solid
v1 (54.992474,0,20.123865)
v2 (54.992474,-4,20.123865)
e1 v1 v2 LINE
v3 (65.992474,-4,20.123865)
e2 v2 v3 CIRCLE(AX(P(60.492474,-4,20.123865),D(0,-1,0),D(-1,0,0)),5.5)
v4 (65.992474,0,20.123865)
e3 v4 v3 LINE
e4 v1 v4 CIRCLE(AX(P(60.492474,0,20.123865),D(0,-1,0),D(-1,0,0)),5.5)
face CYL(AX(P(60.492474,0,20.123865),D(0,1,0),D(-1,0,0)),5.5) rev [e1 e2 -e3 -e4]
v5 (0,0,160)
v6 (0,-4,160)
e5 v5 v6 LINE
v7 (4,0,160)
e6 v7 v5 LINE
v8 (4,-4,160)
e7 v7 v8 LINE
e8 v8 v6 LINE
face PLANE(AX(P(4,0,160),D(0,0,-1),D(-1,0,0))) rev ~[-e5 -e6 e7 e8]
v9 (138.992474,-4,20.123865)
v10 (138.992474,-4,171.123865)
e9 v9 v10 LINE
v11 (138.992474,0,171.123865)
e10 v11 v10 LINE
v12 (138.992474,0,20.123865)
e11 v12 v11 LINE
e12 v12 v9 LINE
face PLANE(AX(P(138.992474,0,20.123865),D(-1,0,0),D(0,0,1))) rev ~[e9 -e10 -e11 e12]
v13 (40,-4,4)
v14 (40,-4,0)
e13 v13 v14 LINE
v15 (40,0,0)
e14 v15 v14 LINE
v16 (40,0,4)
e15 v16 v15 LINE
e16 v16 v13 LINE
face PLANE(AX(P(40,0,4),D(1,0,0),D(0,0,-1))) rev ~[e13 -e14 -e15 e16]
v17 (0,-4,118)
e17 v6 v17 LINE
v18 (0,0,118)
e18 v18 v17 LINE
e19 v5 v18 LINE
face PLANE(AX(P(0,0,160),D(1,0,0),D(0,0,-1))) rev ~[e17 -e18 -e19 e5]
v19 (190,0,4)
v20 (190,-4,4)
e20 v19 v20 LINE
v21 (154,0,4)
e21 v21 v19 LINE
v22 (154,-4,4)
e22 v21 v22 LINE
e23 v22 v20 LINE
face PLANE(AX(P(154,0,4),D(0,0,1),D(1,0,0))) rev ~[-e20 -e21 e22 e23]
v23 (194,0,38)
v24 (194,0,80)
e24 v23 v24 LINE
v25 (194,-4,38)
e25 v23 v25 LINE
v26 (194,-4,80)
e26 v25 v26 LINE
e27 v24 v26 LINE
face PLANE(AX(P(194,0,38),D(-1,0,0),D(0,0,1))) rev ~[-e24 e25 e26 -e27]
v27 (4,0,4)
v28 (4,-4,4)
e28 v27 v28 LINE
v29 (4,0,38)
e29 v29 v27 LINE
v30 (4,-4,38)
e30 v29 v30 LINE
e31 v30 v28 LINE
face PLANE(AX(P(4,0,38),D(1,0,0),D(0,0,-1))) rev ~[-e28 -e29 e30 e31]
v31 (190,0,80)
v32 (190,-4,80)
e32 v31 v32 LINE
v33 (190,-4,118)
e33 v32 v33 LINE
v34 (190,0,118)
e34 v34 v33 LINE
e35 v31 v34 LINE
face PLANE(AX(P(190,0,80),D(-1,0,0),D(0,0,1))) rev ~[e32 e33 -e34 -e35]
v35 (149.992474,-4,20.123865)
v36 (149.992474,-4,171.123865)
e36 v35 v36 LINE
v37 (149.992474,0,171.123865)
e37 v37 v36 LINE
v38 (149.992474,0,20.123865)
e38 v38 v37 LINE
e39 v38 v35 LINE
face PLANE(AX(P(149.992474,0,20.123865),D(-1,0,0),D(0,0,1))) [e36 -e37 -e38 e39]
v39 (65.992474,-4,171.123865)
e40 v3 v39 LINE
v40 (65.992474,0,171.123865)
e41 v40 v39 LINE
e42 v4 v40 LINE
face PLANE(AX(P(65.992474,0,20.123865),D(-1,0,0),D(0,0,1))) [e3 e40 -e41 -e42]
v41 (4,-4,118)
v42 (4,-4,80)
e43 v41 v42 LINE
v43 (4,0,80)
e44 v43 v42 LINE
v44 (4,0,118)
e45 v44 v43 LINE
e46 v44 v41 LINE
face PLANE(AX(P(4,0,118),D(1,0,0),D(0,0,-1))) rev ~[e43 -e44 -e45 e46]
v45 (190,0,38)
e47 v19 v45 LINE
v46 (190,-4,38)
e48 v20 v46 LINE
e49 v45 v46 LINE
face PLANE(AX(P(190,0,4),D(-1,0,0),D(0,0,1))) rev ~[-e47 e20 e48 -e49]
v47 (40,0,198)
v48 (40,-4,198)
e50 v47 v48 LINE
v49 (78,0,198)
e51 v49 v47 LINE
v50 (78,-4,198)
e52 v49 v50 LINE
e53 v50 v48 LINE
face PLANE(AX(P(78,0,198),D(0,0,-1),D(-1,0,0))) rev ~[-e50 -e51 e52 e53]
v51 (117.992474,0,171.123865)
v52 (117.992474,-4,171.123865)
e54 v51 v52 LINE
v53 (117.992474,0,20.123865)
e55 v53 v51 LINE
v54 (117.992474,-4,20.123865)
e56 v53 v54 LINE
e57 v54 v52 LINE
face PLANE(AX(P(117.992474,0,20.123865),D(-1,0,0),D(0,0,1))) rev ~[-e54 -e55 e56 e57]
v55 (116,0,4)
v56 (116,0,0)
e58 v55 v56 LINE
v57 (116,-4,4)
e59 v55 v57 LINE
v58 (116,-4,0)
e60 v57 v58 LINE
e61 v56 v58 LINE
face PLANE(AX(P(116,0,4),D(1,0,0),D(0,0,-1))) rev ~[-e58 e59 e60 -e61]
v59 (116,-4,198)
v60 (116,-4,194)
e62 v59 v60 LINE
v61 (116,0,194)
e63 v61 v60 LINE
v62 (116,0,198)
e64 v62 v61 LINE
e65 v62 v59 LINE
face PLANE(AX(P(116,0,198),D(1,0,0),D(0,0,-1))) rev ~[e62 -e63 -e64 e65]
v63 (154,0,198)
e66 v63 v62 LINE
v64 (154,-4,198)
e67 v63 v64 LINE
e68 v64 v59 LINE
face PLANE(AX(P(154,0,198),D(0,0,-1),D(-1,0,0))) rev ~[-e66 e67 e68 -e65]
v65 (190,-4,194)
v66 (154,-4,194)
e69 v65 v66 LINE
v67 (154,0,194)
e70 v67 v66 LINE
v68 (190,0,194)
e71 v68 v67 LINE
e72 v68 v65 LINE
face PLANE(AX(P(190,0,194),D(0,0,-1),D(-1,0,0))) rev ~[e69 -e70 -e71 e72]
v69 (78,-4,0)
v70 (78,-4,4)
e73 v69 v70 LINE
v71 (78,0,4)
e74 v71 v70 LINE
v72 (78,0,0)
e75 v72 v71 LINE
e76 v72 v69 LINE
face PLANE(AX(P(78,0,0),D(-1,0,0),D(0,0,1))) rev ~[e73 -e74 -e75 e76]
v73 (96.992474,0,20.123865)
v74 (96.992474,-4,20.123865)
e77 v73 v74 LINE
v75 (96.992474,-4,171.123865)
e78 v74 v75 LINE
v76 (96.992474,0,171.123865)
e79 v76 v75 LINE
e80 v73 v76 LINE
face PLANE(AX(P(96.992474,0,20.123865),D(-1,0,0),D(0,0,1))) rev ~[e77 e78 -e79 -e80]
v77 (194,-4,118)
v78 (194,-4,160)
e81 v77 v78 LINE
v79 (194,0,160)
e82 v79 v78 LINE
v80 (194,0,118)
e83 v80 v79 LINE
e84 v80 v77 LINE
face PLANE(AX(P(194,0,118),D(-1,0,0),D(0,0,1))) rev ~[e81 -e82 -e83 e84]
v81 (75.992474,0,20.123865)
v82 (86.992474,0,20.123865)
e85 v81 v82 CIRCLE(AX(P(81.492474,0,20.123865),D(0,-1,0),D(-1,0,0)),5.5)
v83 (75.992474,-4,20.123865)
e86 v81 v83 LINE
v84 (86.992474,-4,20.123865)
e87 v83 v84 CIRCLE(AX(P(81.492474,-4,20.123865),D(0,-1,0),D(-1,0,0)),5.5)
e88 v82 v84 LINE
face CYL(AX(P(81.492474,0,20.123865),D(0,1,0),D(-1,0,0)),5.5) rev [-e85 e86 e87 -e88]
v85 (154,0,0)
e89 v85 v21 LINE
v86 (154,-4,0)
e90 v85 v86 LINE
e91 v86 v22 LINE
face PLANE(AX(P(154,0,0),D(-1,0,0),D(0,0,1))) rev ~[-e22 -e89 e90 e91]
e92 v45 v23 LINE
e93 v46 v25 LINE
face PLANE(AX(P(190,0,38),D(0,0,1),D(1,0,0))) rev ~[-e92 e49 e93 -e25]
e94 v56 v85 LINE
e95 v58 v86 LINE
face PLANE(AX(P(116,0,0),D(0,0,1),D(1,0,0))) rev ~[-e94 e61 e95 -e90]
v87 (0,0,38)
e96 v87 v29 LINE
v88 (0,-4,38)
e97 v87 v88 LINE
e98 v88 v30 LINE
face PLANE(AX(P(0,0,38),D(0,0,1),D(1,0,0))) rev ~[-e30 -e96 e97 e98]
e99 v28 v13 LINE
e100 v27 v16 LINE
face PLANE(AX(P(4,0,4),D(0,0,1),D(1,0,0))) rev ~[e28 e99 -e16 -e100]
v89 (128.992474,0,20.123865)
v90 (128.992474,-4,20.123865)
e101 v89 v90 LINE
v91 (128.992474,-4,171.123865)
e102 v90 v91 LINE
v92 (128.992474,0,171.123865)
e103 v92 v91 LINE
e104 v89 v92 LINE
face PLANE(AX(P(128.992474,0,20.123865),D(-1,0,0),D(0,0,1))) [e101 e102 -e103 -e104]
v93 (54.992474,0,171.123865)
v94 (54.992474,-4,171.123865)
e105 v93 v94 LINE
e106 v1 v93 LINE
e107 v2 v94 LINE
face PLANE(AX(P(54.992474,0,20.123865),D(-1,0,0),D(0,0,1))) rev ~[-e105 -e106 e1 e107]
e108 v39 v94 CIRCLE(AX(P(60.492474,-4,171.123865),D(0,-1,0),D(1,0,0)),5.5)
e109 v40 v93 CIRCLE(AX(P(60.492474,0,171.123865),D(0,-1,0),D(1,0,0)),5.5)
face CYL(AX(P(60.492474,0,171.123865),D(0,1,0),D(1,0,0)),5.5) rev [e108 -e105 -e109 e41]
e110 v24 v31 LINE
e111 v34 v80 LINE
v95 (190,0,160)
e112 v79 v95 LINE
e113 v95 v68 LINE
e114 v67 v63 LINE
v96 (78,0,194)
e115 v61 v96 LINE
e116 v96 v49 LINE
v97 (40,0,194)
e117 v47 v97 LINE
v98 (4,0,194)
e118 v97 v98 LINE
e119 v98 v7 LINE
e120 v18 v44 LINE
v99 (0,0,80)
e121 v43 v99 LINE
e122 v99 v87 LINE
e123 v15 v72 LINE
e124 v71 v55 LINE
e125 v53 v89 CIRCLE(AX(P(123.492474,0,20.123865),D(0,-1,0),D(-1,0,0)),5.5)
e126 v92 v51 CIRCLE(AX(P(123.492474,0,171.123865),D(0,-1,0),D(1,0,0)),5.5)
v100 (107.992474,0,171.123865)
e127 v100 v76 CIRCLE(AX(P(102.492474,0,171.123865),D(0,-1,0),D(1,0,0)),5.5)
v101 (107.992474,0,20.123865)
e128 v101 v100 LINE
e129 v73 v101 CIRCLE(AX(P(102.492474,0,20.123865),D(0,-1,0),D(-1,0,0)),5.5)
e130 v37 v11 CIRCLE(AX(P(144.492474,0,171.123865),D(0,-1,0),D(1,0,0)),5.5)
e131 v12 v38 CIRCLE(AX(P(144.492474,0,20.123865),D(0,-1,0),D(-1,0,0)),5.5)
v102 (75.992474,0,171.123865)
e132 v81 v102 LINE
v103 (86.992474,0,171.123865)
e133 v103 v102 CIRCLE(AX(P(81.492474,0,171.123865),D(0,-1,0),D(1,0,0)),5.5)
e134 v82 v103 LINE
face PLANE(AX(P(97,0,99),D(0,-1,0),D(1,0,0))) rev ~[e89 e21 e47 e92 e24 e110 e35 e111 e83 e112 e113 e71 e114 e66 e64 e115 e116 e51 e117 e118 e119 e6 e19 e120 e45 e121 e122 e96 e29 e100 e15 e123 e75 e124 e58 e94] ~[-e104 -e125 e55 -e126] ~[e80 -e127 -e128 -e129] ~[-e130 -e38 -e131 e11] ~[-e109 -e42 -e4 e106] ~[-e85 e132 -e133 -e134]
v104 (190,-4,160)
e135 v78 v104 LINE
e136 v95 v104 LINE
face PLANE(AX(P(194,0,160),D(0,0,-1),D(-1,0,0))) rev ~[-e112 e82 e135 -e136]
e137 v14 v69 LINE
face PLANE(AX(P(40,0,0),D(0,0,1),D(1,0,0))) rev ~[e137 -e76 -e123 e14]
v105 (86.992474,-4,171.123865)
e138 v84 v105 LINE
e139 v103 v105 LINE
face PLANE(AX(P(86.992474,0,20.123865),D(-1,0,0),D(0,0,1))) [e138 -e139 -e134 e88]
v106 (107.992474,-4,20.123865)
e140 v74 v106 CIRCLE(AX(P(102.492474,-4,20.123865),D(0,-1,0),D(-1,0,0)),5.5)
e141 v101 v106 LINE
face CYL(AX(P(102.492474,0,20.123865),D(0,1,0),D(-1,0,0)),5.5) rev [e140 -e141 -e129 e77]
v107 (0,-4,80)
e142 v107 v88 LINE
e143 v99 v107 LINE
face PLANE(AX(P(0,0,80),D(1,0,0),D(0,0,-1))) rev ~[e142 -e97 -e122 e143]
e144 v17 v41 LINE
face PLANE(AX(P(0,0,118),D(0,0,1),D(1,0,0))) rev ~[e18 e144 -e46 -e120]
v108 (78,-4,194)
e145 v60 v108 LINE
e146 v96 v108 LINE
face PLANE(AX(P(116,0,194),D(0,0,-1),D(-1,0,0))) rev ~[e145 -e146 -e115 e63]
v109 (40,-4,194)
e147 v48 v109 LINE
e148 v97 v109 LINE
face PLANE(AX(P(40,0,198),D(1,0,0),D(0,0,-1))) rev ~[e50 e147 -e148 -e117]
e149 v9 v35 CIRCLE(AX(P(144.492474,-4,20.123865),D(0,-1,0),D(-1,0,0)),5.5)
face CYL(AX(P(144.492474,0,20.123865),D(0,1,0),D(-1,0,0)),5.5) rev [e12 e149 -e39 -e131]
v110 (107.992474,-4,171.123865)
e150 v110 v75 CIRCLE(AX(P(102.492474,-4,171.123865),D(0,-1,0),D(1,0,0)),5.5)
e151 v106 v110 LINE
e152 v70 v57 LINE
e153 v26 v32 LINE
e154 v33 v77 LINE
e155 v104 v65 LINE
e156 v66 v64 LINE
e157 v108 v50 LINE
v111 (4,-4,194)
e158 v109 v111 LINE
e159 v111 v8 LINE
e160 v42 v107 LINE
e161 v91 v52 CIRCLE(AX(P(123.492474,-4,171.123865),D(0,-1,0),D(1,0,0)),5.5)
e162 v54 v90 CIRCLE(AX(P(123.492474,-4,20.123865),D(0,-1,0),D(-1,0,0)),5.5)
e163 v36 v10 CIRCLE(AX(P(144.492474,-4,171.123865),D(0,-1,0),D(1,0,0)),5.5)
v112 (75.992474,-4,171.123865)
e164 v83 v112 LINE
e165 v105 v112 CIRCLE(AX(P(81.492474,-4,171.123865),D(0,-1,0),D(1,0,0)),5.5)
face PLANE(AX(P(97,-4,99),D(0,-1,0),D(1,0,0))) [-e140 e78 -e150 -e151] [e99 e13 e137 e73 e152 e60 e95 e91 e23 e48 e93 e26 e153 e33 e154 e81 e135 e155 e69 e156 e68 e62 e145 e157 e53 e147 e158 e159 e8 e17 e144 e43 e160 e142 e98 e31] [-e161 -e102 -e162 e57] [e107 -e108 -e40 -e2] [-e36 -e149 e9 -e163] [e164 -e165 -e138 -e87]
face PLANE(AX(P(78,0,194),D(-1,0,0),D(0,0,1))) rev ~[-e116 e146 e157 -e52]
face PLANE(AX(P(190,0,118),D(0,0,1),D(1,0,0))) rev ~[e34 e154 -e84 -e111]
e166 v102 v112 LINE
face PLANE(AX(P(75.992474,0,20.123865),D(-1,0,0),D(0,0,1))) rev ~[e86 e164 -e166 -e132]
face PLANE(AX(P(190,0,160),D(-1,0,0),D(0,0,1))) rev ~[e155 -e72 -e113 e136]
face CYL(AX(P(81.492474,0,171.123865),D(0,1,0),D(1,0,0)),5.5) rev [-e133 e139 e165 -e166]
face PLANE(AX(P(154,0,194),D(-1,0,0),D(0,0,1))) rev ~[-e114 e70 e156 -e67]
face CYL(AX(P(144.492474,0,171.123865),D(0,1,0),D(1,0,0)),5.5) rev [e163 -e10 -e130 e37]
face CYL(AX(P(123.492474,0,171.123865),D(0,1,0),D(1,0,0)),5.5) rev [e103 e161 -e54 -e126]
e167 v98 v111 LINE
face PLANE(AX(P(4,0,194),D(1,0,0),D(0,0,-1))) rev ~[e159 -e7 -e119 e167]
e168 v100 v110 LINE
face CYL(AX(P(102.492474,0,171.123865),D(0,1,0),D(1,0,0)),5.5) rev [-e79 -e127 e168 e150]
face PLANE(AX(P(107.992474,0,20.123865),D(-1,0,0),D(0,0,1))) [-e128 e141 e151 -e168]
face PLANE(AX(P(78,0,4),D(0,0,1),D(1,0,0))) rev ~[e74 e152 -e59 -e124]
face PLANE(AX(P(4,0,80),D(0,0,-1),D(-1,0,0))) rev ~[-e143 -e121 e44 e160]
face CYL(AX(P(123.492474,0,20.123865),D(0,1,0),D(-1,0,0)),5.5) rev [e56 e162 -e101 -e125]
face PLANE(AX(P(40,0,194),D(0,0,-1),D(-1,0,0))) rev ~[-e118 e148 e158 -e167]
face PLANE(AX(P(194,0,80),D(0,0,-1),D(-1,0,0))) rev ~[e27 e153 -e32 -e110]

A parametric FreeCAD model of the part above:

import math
import FreeCAD as App
import Part
import Sketcher
Q = App.Units.Quantity


def add_polygon(sketch, points):
    """Adds a closed chain of lines whose ends are joined by coincident constraints."""
    first, n = sketch.GeometryCount, len(points)
    for a, b in zip(points, points[1:] + points[:1]):
        sketch.addGeometry(Part.LineSegment(App.Vector(*a, 0), App.Vector(*b, 0)), False)
    for i in range(n):
        sketch.addConstraint(Sketcher.Constraint("Coincident", first + i, 2, first + (i + 1) % n, 1))

doc = App.newDocument("Part")
body = doc.addObject("PartDesign::Body", "Body")

# Sketch on XZ plane
sketch1 = body.newObject("Sketcher::SketchObject", "Sketch")
sketch1.AttachmentSupport = (doc.getObject("XZ_Plane"), [""])
sketch1.MapMode = "FlatFace"
add_polygon(sketch1, [(40, 4), (40, 0), (78, 0), (78, 4), (116, 4), (116, 0), (154, 0), (154, 4), (190, 4), (190, 38), (194, 38), (194, 80), (190, 80), (190, 118), (194, 118), (194, 160), (190, 160), (190, 194), (154, 194), (154, 198), (116, 198), (116, 194), (78, 194), (78, 198), (40, 198), (40, 194), (4, 194), (4, 160), (0, 160), (0, 118), (4, 118), (4, 80), (0, 80), (0, 38), (4, 38), (4, 4)])  # lines 0-35
sketch1.addConstraint(Sketcher.Constraint("Vertical", 0))
sketch1.addConstraint(Sketcher.Constraint("Horizontal", 1))
sketch1.addConstraint(Sketcher.Constraint("Vertical", 2))
sketch1.addConstraint(Sketcher.Constraint("Horizontal", 3))
sketch1.addConstraint(Sketcher.Constraint("Vertical", 4))
sketch1.addConstraint(Sketcher.Constraint("Horizontal", 5))
sketch1.addConstraint(Sketcher.Constraint("Vertical", 6))
sketch1.addConstraint(Sketcher.Constraint("Horizontal", 7))
sketch1.addConstraint(Sketcher.Constraint("Vertical", 8))
sketch1.addConstraint(Sketcher.Constraint("Horizontal", 9))
sketch1.addConstraint(Sketcher.Constraint("Vertical", 10))
sketch1.addConstraint(Sketcher.Constraint("Horizontal", 11))
sketch1.addConstraint(Sketcher.Constraint("Vertical", 12))
sketch1.addConstraint(Sketcher.Constraint("Horizontal", 13))
sketch1.addConstraint(Sketcher.Constraint("Vertical", 14))
sketch1.addConstraint(Sketcher.Constraint("Horizontal", 15))
sketch1.addConstraint(Sketcher.Constraint("Vertical", 16))
sketch1.addConstraint(Sketcher.Constraint("Horizontal", 17))
sketch1.addConstraint(Sketcher.Constraint("Vertical", 18))
sketch1.addConstraint(Sketcher.Constraint("Horizontal", 19))
sketch1.addConstraint(Sketcher.Constraint("Vertical", 20))
sketch1.addConstraint(Sketcher.Constraint("Horizontal", 21))
sketch1.addConstraint(Sketcher.Constraint("Vertical", 22))
sketch1.addConstraint(Sketcher.Constraint("Horizontal", 23))
sketch1.addConstraint(Sketcher.Constraint("Vertical", 24))
sketch1.addConstraint(Sketcher.Constraint("Horizontal", 25))
sketch1.addConstraint(Sketcher.Constraint("Vertical", 26))
sketch1.addConstraint(Sketcher.Constraint("Horizontal", 27))
sketch1.addConstraint(Sketcher.Constraint("Vertical", 28))
sketch1.addConstraint(Sketcher.Constraint("Horizontal", 29))
sketch1.addConstraint(Sketcher.Constraint("Vertical", 30))
sketch1.addConstraint(Sketcher.Constraint("Horizontal", 31))
sketch1.addConstraint(Sketcher.Constraint("Vertical", 32))
sketch1.addConstraint(Sketcher.Constraint("Horizontal", 33))
sketch1.addConstraint(Sketcher.Constraint("Vertical", 34))
sketch1.addConstraint(Sketcher.Constraint("Horizontal", 35))
sketch1.addConstraint(Sketcher.Constraint("PointOnObject", 0, 2, -1))
sketch1.addConstraint(Sketcher.Constraint("PointOnObject", 4, 2, -1))
sketch1.addConstraint(Sketcher.Constraint("PointOnObject", 27, 2, -2))
sketch1.addConstraint(Sketcher.Constraint("PointOnObject", 31, 2, -2))
sketch1.addConstraint(Sketcher.Constraint("Horizontal", 3, 2, 6, 2))
sketch1.addConstraint(Sketcher.Constraint("Horizontal", 17, 2, 20, 2))
sketch1.addConstraint(Sketcher.Constraint("Horizontal", 19, 2, 22, 2))
sketch1.addConstraint(Sketcher.Constraint("Horizontal", 21, 2, 24, 2))
sketch1.addConstraint(Sketcher.Constraint("Horizontal", 15, 2, 26, 2))
sketch1.addConstraint(Sketcher.Constraint("Horizontal", 13, 2, 28, 2))
sketch1.addConstraint(Sketcher.Constraint("Horizontal", 11, 2, 30, 2))
sketch1.addConstraint(Sketcher.Constraint("Horizontal", 9, 2, 32, 2))
sketch1.addConstraint(Sketcher.Constraint("Horizontal", 7, 2, 34, 2))
sketch1.addConstraint(Sketcher.Constraint("Vertical", 8, 2, 11, 2))
sketch1.addConstraint(Sketcher.Constraint("Vertical", 10, 2, 13, 2))
sketch1.addConstraint(Sketcher.Constraint("Vertical", 12, 2, 15, 2))
sketch1.addConstraint(Sketcher.Constraint("Vertical", 6, 2, 17, 2))
sketch1.addConstraint(Sketcher.Constraint("Vertical", 4, 2, 19, 2))
sketch1.addConstraint(Sketcher.Constraint("Vertical", 2, 2, 21, 2))
sketch1.addConstraint(Sketcher.Constraint("Vertical", 0, 2, 23, 2))
sketch1.addConstraint(Sketcher.Constraint("Vertical", 26, 2, 29, 2))
sketch1.addConstraint(Sketcher.Constraint("Vertical", 30, 2, 33, 2))
sketch1.addConstraint(Sketcher.Constraint("Equal", 1, 3))
sketch1.addConstraint(Sketcher.Constraint("Equal", 3, 5))
sketch1.addConstraint(Sketcher.Constraint("Equal", 17, 25))
sketch1.addConstraint(Sketcher.Constraint("Equal", 15, 27))
sketch1.addConstraint(Sketcher.Constraint("Equal", 33, 0))
sketch1.addConstraint(Sketcher.Constraint("Equal", 23, 12))
sketch1.addConstraint(Sketcher.Constraint("Equal", 10, 14))
sketch1.addConstraint(Sketcher.Constraint("Equal", 8, 16))
sketch1.addConstraint(Sketcher.Constraint("Equal", 6, 18))
sketch1.addConstraint(Sketcher.Constraint("DistanceX", 1, 1, 1, 2, Q("38 mm")))
sketch1.addConstraint(Sketcher.Constraint("DistanceX", 7, 1, 7, 2, Q("36 mm")))
sketch1.addConstraint(Sketcher.Constraint("DistanceX", 9, 1, 9, 2, Q("4 mm")))
sketch1.addConstraint(Sketcher.Constraint("DistanceY", 8, 1, 8, 2, Q("34 mm")))
sketch1.addConstraint(Sketcher.Constraint("DistanceY", 10, 1, 10, 2, Q("42 mm")))
pad1 = body.newObject("PartDesign::Pad", "Pad")
pad1.Profile = sketch1
pad1.Length = 4

# Sketch on XZ plane
sketch2 = body.newObject("Sketcher::SketchObject", "Sketch001")
sketch2.AttachmentSupport = (doc.getObject("XZ_Plane"), [""])
sketch2.MapMode = "FlatFace"
sketch2.addGeometry(Part.ArcOfCircle(Part.Circle(App.Vector(60.492474, 171.123865, 0), App.Vector(0, 0, 1), 5.5), math.radians(0), math.radians(180)), False)
sketch2.addGeometry(Part.LineSegment(App.Vector(54.992474, 171.123865, 0), App.Vector(54.992474, 20.123865, 0)), False)
sketch2.addGeometry(Part.ArcOfCircle(Part.Circle(App.Vector(60.492474, 20.123865, 0), App.Vector(0, 0, 1), 5.5), math.radians(180), math.radians(360)), False)
sketch2.addGeometry(Part.LineSegment(App.Vector(65.992474, 20.123865, 0), App.Vector(65.992474, 171.123865, 0)), False)
sketch2.addGeometry(Part.ArcOfCircle(Part.Circle(App.Vector(81.492474, 171.123865, 0), App.Vector(0, 0, 1), 5.5), math.radians(0), math.radians(180)), False)
sketch2.addGeometry(Part.LineSegment(App.Vector(75.992474, 171.123865, 0), App.Vector(75.992474, 20.123865, 0)), False)
sketch2.addGeometry(Part.ArcOfCircle(Part.Circle(App.Vector(81.492474, 20.123865, 0), App.Vector(0, 0, 1), 5.5), math.radians(180), math.radians(360)), False)
sketch2.addGeometry(Part.LineSegment(App.Vector(86.992474, 20.123865, 0), App.Vector(86.992474, 171.123865, 0)), False)
sketch2.addGeometry(Part.ArcOfCircle(Part.Circle(App.Vector(102.492474, 171.123865, 0), App.Vector(0, 0, 1), 5.5), math.radians(0), math.radians(180)), False)
sketch2.addGeometry(Part.LineSegment(App.Vector(96.992474, 171.123865, 0), App.Vector(96.992474, 20.123865, 0)), False)
sketch2.addGeometry(Part.ArcOfCircle(Part.Circle(App.Vector(102.492474, 20.123865, 0), App.Vector(0, 0, 1), 5.5), math.radians(180), math.radians(360)), False)
sketch2.addGeometry(Part.LineSegment(App.Vector(107.992474, 20.123865, 0), App.Vector(107.992474, 171.123865, 0)), False)
sketch2.addGeometry(Part.ArcOfCircle(Part.Circle(App.Vector(123.492474, 171.123865, 0), App.Vector(0, 0, 1), 5.5), math.radians(0), math.radians(180)), False)
sketch2.addGeometry(Part.LineSegment(App.Vector(117.992474, 171.123865, 0), App.Vector(117.992474, 20.123865, 0)), False)
sketch2.addGeometry(Part.ArcOfCircle(Part.Circle(App.Vector(123.492474, 20.123865, 0), App.Vector(0, 0, 1), 5.5), math.radians(180), math.radians(360)), False)
sketch2.addGeometry(Part.LineSegment(App.Vector(128.992474, 20.123865, 0), App.Vector(128.992474, 171.123865, 0)), False)
sketch2.addGeometry(Part.ArcOfCircle(Part.Circle(App.Vector(144.492474, 171.123865, 0), App.Vector(0, 0, 1), 5.5), math.radians(0), math.radians(180)), False)
sketch2.addGeometry(Part.LineSegment(App.Vector(138.992474, 171.123865, 0), App.Vector(138.992474, 20.123865, 0)), False)
sketch2.addGeometry(Part.ArcOfCircle(Part.Circle(App.Vector(144.492474, 20.123865, 0), App.Vector(0, 0, 1), 5.5), math.radians(180), math.radians(360)), False)
sketch2.addGeometry(Part.LineSegment(App.Vector(149.992474, 20.123865, 0), App.Vector(149.992474, 171.123865, 0)), False)
sketch2.addConstraint(Sketcher.Constraint("Tangent", 0, 2, 1, 1))
sketch2.addConstraint(Sketcher.Constraint("Tangent", 1, 2, 2, 1))
sketch2.addConstraint(Sketcher.Constraint("Tangent", 2, 2, 3, 1))
sketch2.addConstraint(Sketcher.Constraint("Tangent", 3, 2, 0, 1))
sketch2.addConstraint(Sketcher.Constraint("Tangent", 4, 2, 5, 1))
sketch2.addConstraint(Sketcher.Constraint("Tangent", 5, 2, 6, 1))
sketch2.addConstraint(Sketcher.Constraint("Tangent", 6, 2, 7, 1))
sketch2.addConstraint(Sketcher.Constraint("Tangent", 7, 2, 4, 1))
sketch2.addConstraint(Sketcher.Constraint("Tangent", 8, 2, 9, 1))
sketch2.addConstraint(Sketcher.Constraint("Tangent", 9, 2, 10, 1))
sketch2.addConstraint(Sketcher.Constraint("Tangent", 10, 2, 11, 1))
sketch2.addConstraint(Sketcher.Constraint("Tangent", 11, 2, 8, 1))
sketch2.addConstraint(Sketcher.Constraint("Tangent", 12, 2, 13, 1))
sketch2.addConstraint(Sketcher.Constraint("Tangent", 13, 2, 14, 1))
sketch2.addConstraint(Sketcher.Constraint("Tangent", 14, 2, 15, 1))
sketch2.addConstraint(Sketcher.Constraint("Tangent", 15, 2, 12, 1))
sketch2.addConstraint(Sketcher.Constraint("Tangent", 16, 2, 17, 1))
sketch2.addConstraint(Sketcher.Constraint("Tangent", 17, 2, 18, 1))
sketch2.addConstraint(Sketcher.Constraint("Tangent", 18, 2, 19, 1))
sketch2.addConstraint(Sketcher.Constraint("Tangent", 19, 2, 16, 1))
sketch2.addConstraint(Sketcher.Constraint("Vertical", 1))
sketch2.addConstraint(Sketcher.Constraint("Vertical", 3))
sketch2.addConstraint(Sketcher.Constraint("Vertical", 5))
sketch2.addConstraint(Sketcher.Constraint("Vertical", 7))
sketch2.addConstraint(Sketcher.Constraint("Vertical", 9))
sketch2.addConstraint(Sketcher.Constraint("Vertical", 11))
sketch2.addConstraint(Sketcher.Constraint("Vertical", 13))
sketch2.addConstraint(Sketcher.Constraint("Vertical", 15))
sketch2.addConstraint(Sketcher.Constraint("Vertical", 17))
sketch2.addConstraint(Sketcher.Constraint("Vertical", 19))
sketch2.addConstraint(Sketcher.Constraint("Equal", 2, 4))
sketch2.addConstraint(Sketcher.Constraint("Equal", 6, 8))
sketch2.addConstraint(Sketcher.Constraint("Equal", 10, 12))
sketch2.addConstraint(Sketcher.Constraint("Equal", 14, 16))
sketch2.addConstraint(Sketcher.Constraint("Horizontal", 0, 3, 4, 3))
sketch2.addConstraint(Sketcher.Constraint("Horizontal", 2, 3, 6, 3))
sketch2.addConstraint(Sketcher.Constraint("Horizontal", 4, 3, 8, 3))
sketch2.addConstraint(Sketcher.Constraint("Horizontal", 6, 3, 10, 3))
sketch2.addConstraint(Sketcher.Constraint("Horizontal", 8, 3, 12, 3))
sketch2.addConstraint(Sketcher.Constraint("Horizontal", 10, 3, 14, 3))
sketch2.addConstraint(Sketcher.Constraint("Horizontal", 12, 3, 16, 3))
sketch2.addConstraint(Sketcher.Constraint("Horizontal", 14, 3, 18, 3))
sketch2.addConstraint(Sketcher.Constraint("Radius", 0, Q("5.5 mm")))
sketch2.addConstraint(Sketcher.Constraint("DistanceY", 1, 2, 1, 1, Q("151 mm")))
sketch2.addConstraint(Sketcher.Constraint("DistanceX", 0, 3, 4, 3, Q("21 mm")))
sketch2.addConstraint(Sketcher.Constraint("DistanceX", 4, 3, 8, 3, Q("21 mm")))
sketch2.addConstraint(Sketcher.Constraint("DistanceX", 8, 3, 12, 3, Q("21 mm")))
sketch2.addConstraint(Sketcher.Constraint("DistanceX", 12, 3, 16, 3, Q("21 mm")))
sketch2.addConstraint(Sketcher.Constraint("DistanceX", -1, 1, 0, 3, Q("60.492474 mm")))
sketch2.addConstraint(Sketcher.Constraint("DistanceY", -1, 1, 0, 3, Q("171.123865 mm")))
pocket1 = body.newObject("PartDesign::Pocket", "Pocket")
pocket1.Profile = sketch2
pocket1.Length = 4
pocket1.Reversed = True

doc.recompute()
